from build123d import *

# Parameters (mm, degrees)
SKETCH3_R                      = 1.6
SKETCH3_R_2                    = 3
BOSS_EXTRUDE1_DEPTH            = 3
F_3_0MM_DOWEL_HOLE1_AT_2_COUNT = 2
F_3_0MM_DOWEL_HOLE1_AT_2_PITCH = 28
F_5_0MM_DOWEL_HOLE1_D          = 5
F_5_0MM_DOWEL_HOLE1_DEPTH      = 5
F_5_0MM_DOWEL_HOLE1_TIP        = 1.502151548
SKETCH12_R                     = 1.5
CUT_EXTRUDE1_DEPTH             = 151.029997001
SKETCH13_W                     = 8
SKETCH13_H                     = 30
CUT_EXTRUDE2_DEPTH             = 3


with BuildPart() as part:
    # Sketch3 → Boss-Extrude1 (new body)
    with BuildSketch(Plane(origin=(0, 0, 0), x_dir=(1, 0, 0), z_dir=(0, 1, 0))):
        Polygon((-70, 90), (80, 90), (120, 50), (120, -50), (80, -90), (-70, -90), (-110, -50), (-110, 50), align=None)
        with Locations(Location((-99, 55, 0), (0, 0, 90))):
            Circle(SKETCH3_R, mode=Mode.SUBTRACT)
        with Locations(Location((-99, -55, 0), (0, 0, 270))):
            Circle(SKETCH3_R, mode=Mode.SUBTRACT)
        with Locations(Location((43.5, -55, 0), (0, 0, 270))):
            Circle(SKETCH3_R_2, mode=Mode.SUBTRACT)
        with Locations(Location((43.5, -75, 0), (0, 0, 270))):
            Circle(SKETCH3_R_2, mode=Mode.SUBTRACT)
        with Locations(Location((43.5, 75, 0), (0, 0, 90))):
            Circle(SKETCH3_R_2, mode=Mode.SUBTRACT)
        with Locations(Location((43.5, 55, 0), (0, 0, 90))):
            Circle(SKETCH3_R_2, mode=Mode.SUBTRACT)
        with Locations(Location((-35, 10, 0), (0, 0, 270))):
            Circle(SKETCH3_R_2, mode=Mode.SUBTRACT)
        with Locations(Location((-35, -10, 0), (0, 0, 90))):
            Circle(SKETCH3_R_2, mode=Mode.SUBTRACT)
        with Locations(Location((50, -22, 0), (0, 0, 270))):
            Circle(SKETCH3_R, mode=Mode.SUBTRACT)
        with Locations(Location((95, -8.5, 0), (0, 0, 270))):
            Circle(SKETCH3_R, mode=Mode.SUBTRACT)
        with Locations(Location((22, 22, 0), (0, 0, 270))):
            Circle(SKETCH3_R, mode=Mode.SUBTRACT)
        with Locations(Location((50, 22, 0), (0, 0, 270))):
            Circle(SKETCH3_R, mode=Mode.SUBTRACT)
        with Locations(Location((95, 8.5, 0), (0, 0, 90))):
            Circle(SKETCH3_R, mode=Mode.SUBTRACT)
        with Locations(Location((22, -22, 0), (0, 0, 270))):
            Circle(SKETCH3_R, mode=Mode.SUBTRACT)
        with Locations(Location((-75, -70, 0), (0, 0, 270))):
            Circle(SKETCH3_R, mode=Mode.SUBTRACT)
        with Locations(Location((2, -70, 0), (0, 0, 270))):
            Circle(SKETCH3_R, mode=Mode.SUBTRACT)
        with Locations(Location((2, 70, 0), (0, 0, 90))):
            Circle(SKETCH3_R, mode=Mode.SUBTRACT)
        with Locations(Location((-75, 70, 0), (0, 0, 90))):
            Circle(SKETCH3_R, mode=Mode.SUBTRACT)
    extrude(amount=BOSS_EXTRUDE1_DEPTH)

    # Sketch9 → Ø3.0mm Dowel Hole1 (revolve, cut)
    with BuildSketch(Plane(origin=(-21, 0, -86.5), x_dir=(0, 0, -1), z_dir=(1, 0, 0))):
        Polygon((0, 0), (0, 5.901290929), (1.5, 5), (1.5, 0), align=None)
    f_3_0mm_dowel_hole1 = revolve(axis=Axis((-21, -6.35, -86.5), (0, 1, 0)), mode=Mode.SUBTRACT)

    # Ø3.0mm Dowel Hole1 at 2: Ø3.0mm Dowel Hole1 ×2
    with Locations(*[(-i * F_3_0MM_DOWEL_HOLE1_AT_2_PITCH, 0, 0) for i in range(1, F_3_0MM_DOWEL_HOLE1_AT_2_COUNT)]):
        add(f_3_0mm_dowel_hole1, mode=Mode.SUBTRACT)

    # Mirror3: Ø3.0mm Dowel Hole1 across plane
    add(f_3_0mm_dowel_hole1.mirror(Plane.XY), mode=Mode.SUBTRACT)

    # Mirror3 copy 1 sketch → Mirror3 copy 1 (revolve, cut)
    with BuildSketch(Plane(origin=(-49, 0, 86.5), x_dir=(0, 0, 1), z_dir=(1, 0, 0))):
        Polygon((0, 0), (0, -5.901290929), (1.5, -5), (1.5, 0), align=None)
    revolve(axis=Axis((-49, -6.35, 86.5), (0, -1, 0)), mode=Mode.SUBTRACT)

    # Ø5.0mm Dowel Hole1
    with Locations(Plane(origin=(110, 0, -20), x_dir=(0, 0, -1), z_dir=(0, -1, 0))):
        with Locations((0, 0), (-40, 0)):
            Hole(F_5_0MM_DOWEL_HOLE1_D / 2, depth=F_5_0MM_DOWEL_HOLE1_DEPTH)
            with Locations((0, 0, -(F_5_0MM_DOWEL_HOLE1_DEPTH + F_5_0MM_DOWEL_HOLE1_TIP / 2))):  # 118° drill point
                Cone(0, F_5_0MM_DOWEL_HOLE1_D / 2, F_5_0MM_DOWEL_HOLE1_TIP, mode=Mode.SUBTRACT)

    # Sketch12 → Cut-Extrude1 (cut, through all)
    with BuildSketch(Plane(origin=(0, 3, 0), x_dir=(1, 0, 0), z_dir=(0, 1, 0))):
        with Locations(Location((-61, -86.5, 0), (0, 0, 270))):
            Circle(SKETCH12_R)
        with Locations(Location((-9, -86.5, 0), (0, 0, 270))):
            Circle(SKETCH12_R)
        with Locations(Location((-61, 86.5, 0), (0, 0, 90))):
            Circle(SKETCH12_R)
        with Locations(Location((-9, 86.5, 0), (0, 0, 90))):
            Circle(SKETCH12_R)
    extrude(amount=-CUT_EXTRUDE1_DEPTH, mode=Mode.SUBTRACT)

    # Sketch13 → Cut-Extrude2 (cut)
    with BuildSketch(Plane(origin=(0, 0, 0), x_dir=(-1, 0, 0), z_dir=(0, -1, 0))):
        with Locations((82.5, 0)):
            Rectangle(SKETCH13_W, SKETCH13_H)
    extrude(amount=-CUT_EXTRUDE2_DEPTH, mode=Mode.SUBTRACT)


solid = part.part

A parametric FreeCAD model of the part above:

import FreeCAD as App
import Part
import Sketcher

V = App.Vector
Q = App.Units.Quantity

doc = App.newDocument("Part")
body = doc.addObject("PartDesign::Body", "Body")

sketch1 = body.newObject("Sketcher::SketchObject", "Sketch")
sketch1.AttachmentSupport = (doc.getObject("XZ_Plane"), [""])
sketch1.MapMode = "FlatFace"
sketch1.addGeometry([
    Part.LineSegment(V(80, -90, 0), V(-70, -90, 0)),
    Part.LineSegment(V(-70, -90, 0), V(-110, -50, 0)),
    Part.LineSegment(V(-110, -50, 0), V(-110, 50, 0)),
    Part.LineSegment(V(-110, 50, 0), V(-70, 90, 0)),
    Part.LineSegment(V(-70, 90, 0), V(80, 90, 0)),
    Part.LineSegment(V(80, 90, 0), V(120, 50, 0)),
    Part.LineSegment(V(120, 50, 0), V(120, -50, 0)),
    Part.LineSegment(V(120, -50, 0), V(80, -90, 0)),
    Part.Circle(V(43.5, 75, 0), V(0, 0, 1), 3),
    Part.Circle(V(2, 70, 0), V(0, 0, 1), 1.6),
    Part.Circle(V(43.5, 55, 0), V(0, 0, 1), 3),
    Part.Circle(V(50, 22, 0), V(0, 0, 1), 1.6),
    Part.Circle(V(95, 8.5, 0), V(0, 0, 1), 1.6),
    Part.Circle(V(22, 22, 0), V(0, 0, 1), 1.6),
    Part.Circle(V(-75, 70, 0), V(0, 0, 1), 1.6),
    Part.Circle(V(-99, 55, 0), V(0, 0, 1), 1.6),
    Part.Circle(V(-35, 10, 0), V(0, 0, 1), 3),
    Part.Circle(V(95, -8.5, 0), V(0, 0, 1), 1.6),
    Part.Circle(V(50, -22, 0), V(0, 0, 1), 1.6),
    Part.Circle(V(22, -22, 0), V(0, 0, 1), 1.6),
    Part.Circle(V(43.5, -55, 0), V(0, 0, 1), 3),
    Part.Circle(V(43.5, -75, 0), V(0, 0, 1), 3),
    Part.Circle(V(2, -70, 0), V(0, 0, 1), 1.6),
    Part.Circle(V(-35, -10, 0), V(0, 0, 1), 3),
    Part.Circle(V(-99, -55, 0), V(0, 0, 1), 1.6),
    Part.Circle(V(-75, -70, 0), V(0, 0, 1), 1.6),
], False)
sketch1.addConstraint([
    Sketcher.Constraint("Coincident", 0, 2, 1, 1),
    Sketcher.Constraint("Coincident", 1, 2, 2, 1),
    Sketcher.Constraint("Coincident", 2, 2, 3, 1),
    Sketcher.Constraint("Coincident", 3, 2, 4, 1),
    Sketcher.Constraint("Coincident", 4, 2, 5, 1),
    Sketcher.Constraint("Coincident", 5, 2, 6, 1),
    Sketcher.Constraint("Coincident", 6, 2, 7, 1),
    Sketcher.Constraint("Coincident", 7, 2, 0, 1),
    Sketcher.Constraint("Horizontal", 0),
    Sketcher.Constraint("Vertical", 2),
    Sketcher.Constraint("Horizontal", 4),
    Sketcher.Constraint("Vertical", 6),
    Sketcher.Constraint("Equal", 8, 10),
    Sketcher.Constraint("Equal", 9, 11),
    Sketcher.Constraint("Equal", 11, 12),
    Sketcher.Constraint("Equal", 12, 13),
    Sketcher.Constraint("Equal", 13, 14),
    Sketcher.Constraint("Equal", 14, 15),
    Sketcher.Constraint("Equal", 10, 16),
    Sketcher.Constraint("Equal", 15, 17),
    Sketcher.Constraint("Equal", 17, 18),
    Sketcher.Constraint("Equal", 18, 19),
    Sketcher.Constraint("Equal", 16, 20),
    Sketcher.Constraint("Equal", 20, 21),
    Sketcher.Constraint("Equal", 19, 22),
    Sketcher.Constraint("Equal", 21, 23),
    Sketcher.Constraint("Equal", 22, 24),
    Sketcher.Constraint("Equal", 24, 25),
    Sketcher.Constraint("Symmetric", 12, 3, 17, 3, -1),
    Sketcher.Constraint("Symmetric", 11, 3, 18, 3, -1),
    Sketcher.Constraint("Symmetric", 13, 3, 19, 3, -1),
    Sketcher.Constraint("Symmetric", 10, 3, 20, 3, -1),
    Sketcher.Constraint("Symmetric", 8, 3, 21, 3, -1),
    Sketcher.Constraint("Symmetric", 9, 3, 22, 3, -1),
    Sketcher.Constraint("Symmetric", 16, 3, 23, 3, -1),
    Sketcher.Constraint("Symmetric", 15, 3, 24, 3, -1),
    Sketcher.Constraint("Symmetric", 14, 3, 25, 3, -1),
    Sketcher.Constraint("Symmetric", 0, 2, 3, 2, -1),
    Sketcher.Constraint("Perpendicular", 1, 3),
    Sketcher.Constraint("Perpendicular", 3, 5),
    Sketcher.Constraint("Perpendicular", 5, 7),
    Sketcher.Constraint("Horizontal", 11, 3, 13, 3),
    Sketcher.Constraint("Horizontal", 9, 3, 14, 3),
    Sketcher.Constraint("Horizontal", 10, 3, 15, 3),
    Sketcher.Constraint("Horizontal", 2, 2, 5, 2),
    Sketcher.Constraint("Horizontal", 1, 2, 6, 2),
    Sketcher.Constraint("Vertical", 8, 3, 10, 3),
    Sketcher.Constraint("Vertical", 4, 2, 7, 2),
    Sketcher.Constraint("Diameter", 8, Q("6 mm")),
    Sketcher.Constraint("Diameter", 9, Q("3.2 mm")),
    Sketcher.Constraint("DistanceX", 0, 2, 0, 1, Q("150 mm")),
    Sketcher.Constraint("DistanceY", 2, 1, 2, 2, Q("100 mm")),
    Sketcher.Constraint("DistanceY", -1, 1, 8, 3, Q("75 mm")),
    Sketcher.Constraint("DistanceX", -1, 1, 9, 3, Q("2 mm")),
    Sketcher.Constraint("DistanceY", -1, 1, 9, 3, Q("70 mm")),
    Sketcher.Constraint("DistanceY", -1, 1, 10, 3, Q("55 mm")),
    Sketcher.Constraint("DistanceX", -1, 1, 11, 3, Q("50 mm")),
    Sketcher.Constraint("DistanceY", -1, 1, 11, 3, Q("22 mm")),
    Sketcher.Constraint("DistanceX", -1, 1, 12, 3, Q("95 mm")),
    Sketcher.Constraint("DistanceX", -1, 1, 13, 3, Q("22 mm")),
    Sketcher.Constraint("DistanceX", 14, 3, -1, 1, Q("75 mm")),
    Sketcher.Constraint("DistanceX", 15, 3, -1, 1, Q("99 mm")),
    Sketcher.Constraint("DistanceX", 16, 3, -1, 1, Q("35 mm")),
    Sketcher.Constraint("DistanceY", -1, 1, 16, 3, Q("10 mm")),
    Sketcher.Constraint("DistanceX", 0, 2, -1, 1, Q("70 mm")),
    Sketcher.Constraint("DistanceY", 0, 2, -1, 1, Q("90 mm")),
    Sketcher.Constraint("DistanceY", 17, 3, 12, 3, Q("17 mm")),
    Sketcher.Constraint("DistanceX", -1, 1, 8, 3, Q("43.5 mm")),
])
pad1 = body.newObject("PartDesign::Pad", "Pad")
pad1.Profile = sketch1
pad1.Length = 3
pad1.Reversed = True

sketch2 = body.newObject("Sketcher::SketchObject", "Sketch001")
sketch2.AttachmentSupport = (doc.getObject("YZ_Plane"), [""])
sketch2.MapMode = "FlatFace"
sketch2.AttachmentOffset = App.Placement(V(0, 0, -21), App.Rotation())
sketch2.addGeometry([
    Part.LineSegment(V(5.9, -86.5, 0), V(0, -86.5, 0)),
    Part.LineSegment(V(0, -86.5, 0), V(0, -88, 0)),
    Part.LineSegment(V(0, -88, 0), V(5, -88, 0)),
    Part.LineSegment(V(5, -88, 0), V(5.9, -86.5, 0)),
], False)
sketch2.addGeometry(Part.LineSegment(V(0, -86.5, 0), V(5.9, -86.5, 0)), True)
sketch2.addConstraint([
    Sketcher.Constraint("Coincident", 0, 2, 1, 1),
    Sketcher.Constraint("Coincident", 1, 2, 2, 1),
    Sketcher.Constraint("Coincident", 2, 2, 3, 1),
    Sketcher.Constraint("Coincident", 3, 2, 0, 1),
    Sketcher.Constraint("Horizontal", 0),
    Sketcher.Constraint("Vertical", 1),
    Sketcher.Constraint("Horizontal", 2),
    Sketcher.Constraint("Horizontal", 4),
    Sketcher.Constraint("Coincident", 4, 1, 0, 2),
    Sketcher.Constraint("PointOnObject", 0, 2, -2),
    Sketcher.Constraint("Equal", 0, 4),
    Sketcher.Constraint("DistanceX", 2, 1, 2, 2, Q("5 mm")),
    Sketcher.Constraint("Angle", 3, Q("59 deg")),
    Sketcher.Constraint("DistanceY", 1, 2, 1, 1, Q("1.5 mm")),
    Sketcher.Constraint("DistanceY", 1, 2, -1, 1, Q("88 mm")),
])
groove = body.newObject("PartDesign::Groove", "Groove")
groove.Profile = sketch2
groove.ReferenceAxis = (sketch2, ["Axis0"])
groove.Angle = 360
doc.recompute()

linearpattern = body.newObject("PartDesign::LinearPattern", "LinearPattern")
linearpattern.Originals = [groove]
linearpattern.Direction = (doc.getObject("X_Axis"), [""])
linearpattern.Mode = "offset"
linearpattern.Offset = 28
linearpattern.Occurrences = 2
linearpattern.Reversed = True
body.Tip = linearpattern
doc.recompute()

mirrored = body.newObject("PartDesign::Mirrored", "Mirrored")
mirrored.Originals = [groove]
mirrored.MirrorPlane = (doc.getObject("XY_Plane"), [""])
body.Tip = mirrored

sketch3 = body.newObject("Sketcher::SketchObject", "Sketch002")
sketch3.AttachmentSupport = (doc.getObject("YZ_Plane"), [""])
sketch3.MapMode = "FlatFace"
sketch3.AttachmentOffset = App.Placement(V(0, 0, -49), App.Rotation())
sketch3.addGeometry([
    Part.LineSegment(V(0, 86.5, 0), V(5.9, 86.5, 0)),
    Part.LineSegment(V(5.9, 86.5, 0), V(5, 88, 0)),
    Part.LineSegment(V(5, 88, 0), V(0, 88, 0)),
    Part.LineSegment(V(0, 88, 0), V(0, 86.5, 0)),
], False)
sketch3.addGeometry(Part.LineSegment(V(5.9, 86.5, 0), V(0, 86.5, 0)), True)
sketch3.addConstraint([
    Sketcher.Constraint("Coincident", 0, 2, 1, 1),
    Sketcher.Constraint("Coincident", 1, 2, 2, 1),
    Sketcher.Constraint("Coincident", 2, 2, 3, 1),
    Sketcher.Constraint("Coincident", 3, 2, 0, 1),
    Sketcher.Constraint("Horizontal", 0),
    Sketcher.Constraint("Horizontal", 2),
    Sketcher.Constraint("Vertical", 3),
    Sketcher.Constraint("Horizontal", 4),
    Sketcher.Constraint("Coincident", 4, 1, 0, 2),
    Sketcher.Constraint("PointOnObject", 2, 2, -2),
    Sketcher.Constraint("PointOnObject", 4, 2, -2),
    Sketcher.Constraint("DistanceX", 2, 2, 2, 1, Q("5 mm")),
    Sketcher.Constraint("Angle", 1, Q("121 deg")),
    Sketcher.Constraint("DistanceY", 3, 2, 3, 1, Q("1.5 mm")),
    Sketcher.Constraint("DistanceY", -1, 1, 1, 2, Q("88 mm")),
])
groove2 = body.newObject("PartDesign::Groove", "Groove001")
groove2.Profile = sketch3
groove2.ReferenceAxis = (sketch3, ["Axis0"])
groove2.Angle = 360

sketch4 = body.newObject("Sketcher::SketchObject", "Sketch003")
sketch4.AttachmentSupport = (doc.getObject("XZ_Plane"), [""])
sketch4.MapMode = "FlatFace"
sketch4.addGeometry([
    Part.Circle(V(110, -20, 0), V(0, 0, 1), 2.5),
    Part.Circle(V(110, 20, 0), V(0, 0, 1), 2.5),
], False)
sketch4.addConstraint([
    Sketcher.Constraint("Equal", 0, 1),
    Sketcher.Constraint("Symmetric", 0, 3, 1, 3, -1),
    Sketcher.Constraint("Diameter", 0, Q("5 mm")),
    Sketcher.Constraint("DistanceX", -1, 1, 0, 3, Q("110 mm")),
    Sketcher.Constraint("DistanceY", 0, 3, -1, 1, Q("20 mm")),
])
doc.recompute()
hole = body.newObject("PartDesign::Hole", "Hole")
hole.Profile = sketch4
hole.ThreadType = "None"
hole.Diameter = 5
hole.DepthType = "Dimension"
hole.Depth = 5
hole.DrillPoint = "Angled"
hole.DrillPointAngle = 118

sketch5 = body.newObject("Sketcher::SketchObject", "Sketch004")
sketch5.AttachmentSupport = (doc.getObject("XZ_Plane"), [""])
sketch5.MapMode = "FlatFace"
sketch5.AttachmentOffset = App.Placement(V(0, 0, -3), App.Rotation())
sketch5.addGeometry([
    Part.Circle(V(-61, 86.5, 0), V(0, 0, 1), 1.5),
    Part.Circle(V(-9, 86.5, 0), V(0, 0, 1), 1.5),
    Part.Circle(V(-61, -86.5, 0), V(0, 0, 1), 1.5),
    Part.Circle(V(-9, -86.5, 0), V(0, 0, 1), 1.5),
], False)
sketch5.addConstraint([
    Sketcher.Constraint("Equal", 0, 1),
    Sketcher.Constraint("Equal", 1, 2),
    Sketcher.Constraint("Equal", 2, 3),
    Sketcher.Constraint("Symmetric", 0, 3, 2, 3, -1),
    Sketcher.Constraint("Symmetric", 1, 3, 3, 3, -1),
    Sketcher.Constraint("Horizontal", 0, 3, 1, 3),
    Sketcher.Constraint("Diameter", 0, Q("3 mm")),
    Sketcher.Constraint("DistanceX", 0, 3, -1, 1, Q("61 mm")),
    Sketcher.Constraint("DistanceX", 1, 3, -1, 1, Q("9 mm")),
    Sketcher.Constraint("DistanceY", 2, 3, 0, 3, Q("173 mm")),
])
pocket1 = body.newObject("PartDesign::Pocket", "Pocket")
pocket1.Profile = sketch5
pocket1.Type = "ThroughAll"
pocket1.Reversed = True

sketch6 = body.newObject("Sketcher::SketchObject", "Sketch005")
sketch6.AttachmentSupport = (doc.getObject("XZ_Plane"), [""])
sketch6.MapMode = "FlatFace"
sketch6.addGeometry([
    Part.LineSegment(V(-78, -15, 0), V(-78, 15, 0)),
    Part.LineSegment(V(-78, 15, 0), V(-86, 15, 0)),
    Part.LineSegment(V(-86, 15, 0), V(-86, -15, 0)),
    Part.LineSegment(V(-86, -15, 0), V(-78, -15, 0)),
], False)
sketch6.addConstraint([
    Sketcher.Constraint("Coincident", 0, 2, 1, 1),
    Sketcher.Constraint("Coincident", 1, 2, 2, 1),
    Sketcher.Constraint("Coincident", 2, 2, 3, 1),
    Sketcher.Constraint("Coincident", 3, 2, 0, 1),
    Sketcher.Constraint("Vertical", 0),
    Sketcher.Constraint("Horizontal", 1),
    Sketcher.Constraint("Vertical", 2),
    Sketcher.Constraint("Horizontal", 3),
    Sketcher.Constraint("DistanceX", 1, 2, 1, 1, Q("8 mm")),
    Sketcher.Constraint("DistanceY", 0, 1, 0, 2, Q("30 mm")),
    Sketcher.Constraint("DistanceY", -1, 1, 0, 2, Q("15 mm")),
    Sketcher.Constraint("DistanceX", 0, 2, -1, 1, Q("78.5 mm")),
])
pocket2 = body.newObject("PartDesign::Pocket", "Pocket001")
pocket2.Profile = sketch6
pocket2.Length = 3

doc.recompute()
